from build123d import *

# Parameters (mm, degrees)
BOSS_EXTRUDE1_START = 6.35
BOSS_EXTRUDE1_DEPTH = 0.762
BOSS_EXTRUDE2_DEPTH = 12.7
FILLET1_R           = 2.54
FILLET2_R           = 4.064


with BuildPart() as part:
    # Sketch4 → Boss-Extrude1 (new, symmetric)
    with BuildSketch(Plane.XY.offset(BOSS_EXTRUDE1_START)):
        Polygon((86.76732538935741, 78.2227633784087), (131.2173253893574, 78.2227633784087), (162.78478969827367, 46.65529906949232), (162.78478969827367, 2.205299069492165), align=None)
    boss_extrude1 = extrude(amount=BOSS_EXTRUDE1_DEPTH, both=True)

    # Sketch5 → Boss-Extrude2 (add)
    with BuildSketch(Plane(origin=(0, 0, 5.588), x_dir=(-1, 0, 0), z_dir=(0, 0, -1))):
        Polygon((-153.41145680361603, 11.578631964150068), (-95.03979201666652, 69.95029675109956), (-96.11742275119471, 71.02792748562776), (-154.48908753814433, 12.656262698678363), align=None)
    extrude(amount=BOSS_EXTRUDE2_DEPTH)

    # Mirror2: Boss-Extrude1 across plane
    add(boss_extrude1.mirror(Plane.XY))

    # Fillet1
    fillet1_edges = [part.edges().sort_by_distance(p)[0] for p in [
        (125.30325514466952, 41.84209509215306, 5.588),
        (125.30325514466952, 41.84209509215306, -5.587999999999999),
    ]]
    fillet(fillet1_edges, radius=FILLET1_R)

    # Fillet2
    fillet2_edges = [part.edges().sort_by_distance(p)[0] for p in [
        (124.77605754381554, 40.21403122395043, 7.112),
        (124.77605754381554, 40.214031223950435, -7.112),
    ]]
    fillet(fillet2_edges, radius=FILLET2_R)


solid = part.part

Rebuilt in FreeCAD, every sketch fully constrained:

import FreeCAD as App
import Part
import Sketcher
Q = App.Units.Quantity


def edges_at(feature, points):
    """Names of the edges that pass closest to the given points."""
    edges = feature.Shape.Edges
    near = lambda p: min(range(len(edges)), key=lambda i: edges[i].distToShape(Part.Vertex(*p))[0])
    return sorted({f"Edge{near(p) + 1}" for p in points})

doc = App.newDocument("Part")
body = doc.addObject("PartDesign::Body", "Body")

# Sketch on XY plane
sketch1 = body.newObject("Sketcher::SketchObject", "Sketch")
sketch1.AttachmentSupport = (doc.getObject("XY_Plane"), [""])
sketch1.MapMode = "FlatFace"
sketch1.AttachmentOffset = App.Placement(App.Vector(0, 0, 0.25 * 25.4), App.Rotation())
sketch1.addGeometry([
    Part.LineSegment(App.Vector(131, 78, 0), App.Vector(87, 78, 0)),
    Part.LineSegment(App.Vector(87, 78, 0), App.Vector(163, 2, 0)),
    Part.LineSegment(App.Vector(163, 2, 0), App.Vector(163, 47, 0)),
    Part.LineSegment(App.Vector(163, 47, 0), App.Vector(131, 78, 0)),
], False)
sketch1.addConstraint([
    Sketcher.Constraint("Coincident", 0, 2, 1, 1),
    Sketcher.Constraint("Coincident", 1, 2, 2, 1),
    Sketcher.Constraint("Coincident", 2, 2, 3, 1),
    Sketcher.Constraint("Coincident", 3, 2, 0, 1),
    Sketcher.Constraint("Horizontal", 0),
    Sketcher.Constraint("Vertical", 2),
    Sketcher.Constraint("Parallel", 1, 3),
    Sketcher.Constraint("Equal", 0, 2),
    Sketcher.Constraint("DistanceX", 0, 2, 0, 1, Q("1.75 in")),
    Sketcher.Constraint("DistanceY", -1, 1, 1, 2, 2.205299),
    Sketcher.Constraint("Distance", 1, 107.504929),
    Sketcher.Constraint("DistanceX", -1, 1, 1, 2, 162.78479),
])
pad1 = body.newObject("PartDesign::Pad", "Pad")
pad1.Profile = sketch1
pad1.Length = Q("0.06 in")
pad1.Midplane = True

# Sketch on XY plane
sketch2 = body.newObject("Sketcher::SketchObject", "Sketch001")
sketch2.AttachmentSupport = (doc.getObject("XY_Plane"), [""])
sketch2.MapMode = "FlatFace"
sketch2.AttachmentOffset = App.Placement(App.Vector(0, 0, 0.22 * 25.4), App.Rotation())
sketch2.addGeometry([
    Part.LineSegment(App.Vector(153.4, 11.6, 0), App.Vector(95, 70, 0)),
    Part.LineSegment(App.Vector(95, 70, 0), App.Vector(96.1, 71, 0)),
    Part.LineSegment(App.Vector(96.1, 71, 0), App.Vector(154.5, 12.7, 0)),
    Part.LineSegment(App.Vector(154.5, 12.7, 0), App.Vector(153.4, 11.6, 0)),
], False)
sketch2.addConstraint([
    Sketcher.Constraint("Coincident", 0, 2, 1, 1),
    Sketcher.Constraint("Coincident", 1, 2, 2, 1),
    Sketcher.Constraint("Coincident", 2, 2, 3, 1),
    Sketcher.Constraint("Coincident", 3, 2, 0, 1),
    Sketcher.Constraint("Perpendicular", 0, 1),
    Sketcher.Constraint("Perpendicular", 1, 2),
    Sketcher.Constraint("Perpendicular", 2, 3),
    Sketcher.Constraint("Angle", 0, Q("135 deg")),
    Sketcher.Constraint("Distance", 0, Q("3.25 in")),
    Sketcher.Constraint("Distance", 1, Q("0.06 in")),
    Sketcher.Constraint("DistanceY", -1, 1, 3, 2, 11.578632),
    Sketcher.Constraint("DistanceX", -1, 1, 0, 2, 95.039792),
])
pad2 = body.newObject("PartDesign::Pad", "Pad001")
pad2.Profile = sketch2
pad2.Length = Q("0.5 in")
pad2.Reversed = True
doc.recompute()

mirrored = body.newObject("PartDesign::Mirrored", "Mirrored")
mirrored.Originals = [pad1]
mirrored.MirrorPlane = (doc.getObject("XY_Plane"), [""])
body.Tip = mirrored
doc.recompute()

fillet = body.newObject("PartDesign::Fillet", "Fillet")
fillet.Base = (mirrored, edges_at(mirrored, [(125.303, 41.842, 5.588), (125.303, 41.842, -5.588)]))
fillet.Radius = Q("0.1 in")
doc.recompute()

fillet2 = body.newObject("PartDesign::Fillet", "Fillet001")
fillet2.Base = (fillet, edges_at(fillet, [(124.776, 40.214, 7.112), (124.776, 40.214, -7.112)]))
fillet2.Radius = Q("0.16 in")

doc.recompute()
